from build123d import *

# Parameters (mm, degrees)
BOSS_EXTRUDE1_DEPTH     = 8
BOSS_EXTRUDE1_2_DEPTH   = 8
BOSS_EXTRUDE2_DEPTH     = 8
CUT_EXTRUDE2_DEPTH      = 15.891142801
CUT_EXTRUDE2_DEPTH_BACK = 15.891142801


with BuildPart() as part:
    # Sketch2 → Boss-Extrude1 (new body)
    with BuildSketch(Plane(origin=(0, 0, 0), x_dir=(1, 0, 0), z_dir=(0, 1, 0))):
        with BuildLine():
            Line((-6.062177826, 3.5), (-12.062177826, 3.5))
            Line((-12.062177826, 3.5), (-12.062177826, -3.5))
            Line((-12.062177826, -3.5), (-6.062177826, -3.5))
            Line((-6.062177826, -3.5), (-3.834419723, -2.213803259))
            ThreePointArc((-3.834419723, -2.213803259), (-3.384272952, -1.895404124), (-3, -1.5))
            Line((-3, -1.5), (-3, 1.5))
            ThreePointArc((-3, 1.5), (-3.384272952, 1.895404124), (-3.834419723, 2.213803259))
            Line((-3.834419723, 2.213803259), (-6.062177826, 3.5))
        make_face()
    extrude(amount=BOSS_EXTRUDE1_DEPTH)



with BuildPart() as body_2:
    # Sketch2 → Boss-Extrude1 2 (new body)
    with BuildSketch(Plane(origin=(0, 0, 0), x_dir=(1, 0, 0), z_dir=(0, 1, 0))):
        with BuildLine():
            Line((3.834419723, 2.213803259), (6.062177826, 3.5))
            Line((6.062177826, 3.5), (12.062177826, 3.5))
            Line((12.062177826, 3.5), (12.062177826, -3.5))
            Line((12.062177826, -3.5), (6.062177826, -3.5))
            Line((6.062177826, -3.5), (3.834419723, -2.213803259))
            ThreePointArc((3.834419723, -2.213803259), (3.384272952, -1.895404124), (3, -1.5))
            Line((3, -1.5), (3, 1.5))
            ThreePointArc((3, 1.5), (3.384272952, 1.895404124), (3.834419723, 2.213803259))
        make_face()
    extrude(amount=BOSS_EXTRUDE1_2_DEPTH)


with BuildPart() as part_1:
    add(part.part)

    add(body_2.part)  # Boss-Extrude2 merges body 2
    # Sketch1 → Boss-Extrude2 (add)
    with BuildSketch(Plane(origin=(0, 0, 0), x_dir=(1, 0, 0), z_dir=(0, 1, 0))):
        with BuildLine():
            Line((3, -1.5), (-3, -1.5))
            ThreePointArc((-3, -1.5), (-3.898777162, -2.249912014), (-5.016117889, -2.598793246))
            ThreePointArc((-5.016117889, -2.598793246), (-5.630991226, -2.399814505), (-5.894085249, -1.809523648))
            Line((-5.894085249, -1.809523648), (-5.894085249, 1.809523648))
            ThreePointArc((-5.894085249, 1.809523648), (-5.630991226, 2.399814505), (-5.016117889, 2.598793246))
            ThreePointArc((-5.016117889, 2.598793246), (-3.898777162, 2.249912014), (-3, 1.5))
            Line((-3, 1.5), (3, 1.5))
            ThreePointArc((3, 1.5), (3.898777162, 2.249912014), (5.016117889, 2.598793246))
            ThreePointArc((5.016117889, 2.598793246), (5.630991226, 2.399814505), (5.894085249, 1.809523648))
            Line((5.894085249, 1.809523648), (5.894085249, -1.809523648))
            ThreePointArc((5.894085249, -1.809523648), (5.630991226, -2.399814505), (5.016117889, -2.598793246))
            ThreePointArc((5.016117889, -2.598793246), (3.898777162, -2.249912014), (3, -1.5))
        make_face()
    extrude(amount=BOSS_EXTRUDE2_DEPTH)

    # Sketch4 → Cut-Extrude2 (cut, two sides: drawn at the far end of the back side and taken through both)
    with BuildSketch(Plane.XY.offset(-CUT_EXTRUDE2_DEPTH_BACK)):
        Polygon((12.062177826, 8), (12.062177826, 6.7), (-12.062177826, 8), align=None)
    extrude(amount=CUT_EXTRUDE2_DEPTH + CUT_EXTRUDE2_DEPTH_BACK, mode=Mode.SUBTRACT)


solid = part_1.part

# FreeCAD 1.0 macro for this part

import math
import FreeCAD as App
import Part
import Sketcher
Q = App.Units.Quantity


def add_polygon(sketch, points):
    """Adds a closed chain of lines whose ends are joined by coincident constraints."""
    first, n = sketch.GeometryCount, len(points)
    for a, b in zip(points, points[1:] + points[:1]):
        sketch.addGeometry(Part.LineSegment(App.Vector(*a, 0), App.Vector(*b, 0)), False)
    for i in range(n):
        sketch.addConstraint(Sketcher.Constraint("Coincident", first + i, 2, first + (i + 1) % n, 1))

doc = App.newDocument("Part")
body = doc.addObject("PartDesign::Body", "Body")

# Sketch on XZ plane
sketch1 = doc.addObject("Sketcher::SketchObject", "Sketch")
body.addObject(sketch1)
sketch1.AttachmentSupport = (doc.XZ_Plane, [""])
sketch1.MapMode = "FlatFace"
sketch1.addGeometry([
    Part.LineSegment(App.Vector(-6.1, -3.5, 0), App.Vector(-12.1, -3.5, 0)),  # 0
    Part.LineSegment(App.Vector(-12.1, -3.5, 0), App.Vector(-12.1, 3.5, 0)),  # 1
    Part.LineSegment(App.Vector(-12.1, 3.5, 0), App.Vector(-6.1, 3.5, 0)),  # 2
    Part.LineSegment(App.Vector(-6.1, 3.5, 0), App.Vector(-3.8, 2.2, 0)),  # 3
    Part.ArcOfCircle(Part.Circle(App.Vector(-5.3, -0.4, 0), App.Vector(0, 0, 1), 3), math.radians(39), math.radians(60)),  # 4
    Part.LineSegment(App.Vector(-3, 1.5, 0), App.Vector(-3, -1.5, 0)),  # 5
    Part.ArcOfCircle(Part.Circle(App.Vector(-5.3, 0.4, 0), App.Vector(0, 0, 1), 3), math.radians(-60), math.radians(-39)),  # 6
    Part.LineSegment(App.Vector(-3.8, -2.2, 0), App.Vector(-6.1, -3.5, 0)),  # 7
], False)
sketch1.addConstraint([
    Sketcher.Constraint("Coincident", 0, 2, 1, 1),
    Sketcher.Constraint("Coincident", 1, 2, 2, 1),
    Sketcher.Constraint("Coincident", 2, 2, 3, 1),
    Sketcher.Constraint("Tangent", 3, 2, 4, 2),
    Sketcher.Constraint("Coincident", 4, 1, 5, 1),
    Sketcher.Constraint("Coincident", 5, 2, 6, 2),
    Sketcher.Constraint("Tangent", 6, 1, 7, 1),
    Sketcher.Constraint("Coincident", 7, 2, 0, 1),
    Sketcher.Constraint("Horizontal", 0),
    Sketcher.Constraint("Vertical", 1),
    Sketcher.Constraint("Horizontal", 2),
    Sketcher.Constraint("Vertical", 5),
    Sketcher.Constraint("Equal", 4, 6),
    Sketcher.Constraint("Symmetric", 4, 3, 6, 3, -1),
    Sketcher.Constraint("Symmetric", 2, 2, 7, 2, -1),
    Sketcher.Constraint("Radius", 4, Q("3 mm")),
    Sketcher.Constraint("DistanceX", 0, 2, 0, 1, Q("6 mm")),
    Sketcher.Constraint("DistanceY", 1, 1, 1, 2, Q("7 mm")),
    Sketcher.Constraint("DistanceY", 5, 2, 5, 1, Q("3 mm")),
    Sketcher.Constraint("Angle", 3, Q("-30 deg")),
    Sketcher.Constraint("DistanceX", 4, 1, -1, 1, Q("3 mm")),
    Sketcher.Constraint("DistanceX", 4, 3, -1, 1, Q("5.33442 mm")),
])
pad1 = doc.addObject("PartDesign::Pad", "Pad")
body.addObject(pad1)
pad1.Profile = sketch1
pad1.Length = 8
pad1.Reversed = True
body2 = doc.addObject("PartDesign::Body", "Body001")

# Sketch on XZ plane
sketch2 = doc.addObject("Sketcher::SketchObject", "Sketch001")
body2.addObject(sketch2)
sketch2.AttachmentSupport = (doc.getObject("XZ_Plane001"), [""])
sketch2.MapMode = "FlatFace"
sketch2.addGeometry([
    Part.LineSegment(App.Vector(6.1, -3.5, 0), App.Vector(3.8, -2.2, 0)),  # 0
    Part.ArcOfCircle(Part.Circle(App.Vector(5.3, 0.4, 0), App.Vector(0, 0, 1), 3), math.radians(-141), math.radians(-120)),  # 1
    Part.LineSegment(App.Vector(3, -1.5, 0), App.Vector(3, 1.5, 0)),  # 2
    Part.ArcOfCircle(Part.Circle(App.Vector(5.3, -0.4, 0), App.Vector(0, 0, 1), 3), math.radians(120), math.radians(141)),  # 3
    Part.LineSegment(App.Vector(3.8, 2.2, 0), App.Vector(6.1, 3.5, 0)),  # 4
    Part.LineSegment(App.Vector(6.1, 3.5, 0), App.Vector(12.1, 3.5, 0)),  # 5
    Part.LineSegment(App.Vector(12.1, 3.5, 0), App.Vector(12.1, -3.5, 0)),  # 6
    Part.LineSegment(App.Vector(12.1, -3.5, 0), App.Vector(6.1, -3.5, 0)),  # 7
], False)
sketch2.addConstraint([
    Sketcher.Constraint("Tangent", 0, 2, 1, 2),
    Sketcher.Constraint("Coincident", 1, 1, 2, 1),
    Sketcher.Constraint("Coincident", 2, 2, 3, 2),
    Sketcher.Constraint("Tangent", 3, 1, 4, 1),
    Sketcher.Constraint("Coincident", 4, 2, 5, 1),
    Sketcher.Constraint("Coincident", 5, 2, 6, 1),
    Sketcher.Constraint("Coincident", 6, 2, 7, 1),
    Sketcher.Constraint("Coincident", 7, 2, 0, 1),
    Sketcher.Constraint("Vertical", 2),
    Sketcher.Constraint("Horizontal", 5),
    Sketcher.Constraint("Vertical", 6),
    Sketcher.Constraint("Horizontal", 7),
    Sketcher.Constraint("Equal", 1, 3),
    Sketcher.Constraint("Symmetric", 1, 3, 3, 3, -1),
    Sketcher.Constraint("Symmetric", 4, 2, 7, 2, -1),
    Sketcher.Constraint("Radius", 1, Q("3 mm")),
    Sketcher.Constraint("DistanceX", 5, 1, 5, 2, Q("6 mm")),
    Sketcher.Constraint("DistanceY", 2, 1, 2, 2, Q("3 mm")),
    Sketcher.Constraint("DistanceY", 6, 2, 6, 1, Q("7 mm")),
    Sketcher.Constraint("Angle", 0, Q("150 deg")),
    Sketcher.Constraint("DistanceX", -1, 1, 1, 1, Q("3 mm")),
    Sketcher.Constraint("DistanceX", -1, 1, 1, 3, Q("5.33442 mm")),
])
pad2 = doc.addObject("PartDesign::Pad", "Pad001")
body2.addObject(pad2)
pad2.Profile = sketch2
pad2.Length = 8
pad2.Reversed = True
body.AllowCompound = True
doc.recompute()

boolean = doc.addObject("PartDesign::Boolean", "Boolean")
body.addObject(boolean)
boolean.Type = "Fuse"
boolean.addObjects([body2])

# Sketch on XZ plane
sketch3 = doc.addObject("Sketcher::SketchObject", "Sketch002")
body.addObject(sketch3)
sketch3.AttachmentSupport = (doc.XZ_Plane, [""])
sketch3.MapMode = "FlatFace"
sketch3.addGeometry([
    Part.LineSegment(App.Vector(-3, 1.5, 0), App.Vector(3, 1.5, 0)),  # 0
    Part.ArcOfCircle(Part.Circle(App.Vector(5.3, -0.4, 0), App.Vector(0, 0, 1), 3), math.radians(96), math.radians(141)),  # 1
    Part.ArcOfCircle(Part.Circle(App.Vector(5.1, 1.8, 0), App.Vector(0, 0, 1), 0.8), math.radians(0), math.radians(96)),  # 2
    Part.LineSegment(App.Vector(5.9, 1.8, 0), App.Vector(5.9, -1.8, 0)),  # 3
    Part.ArcOfCircle(Part.Circle(App.Vector(5.1, -1.8, 0), App.Vector(0, 0, 1), 0.8), math.radians(-96), math.radians(0)),  # 4
    Part.ArcOfCircle(Part.Circle(App.Vector(5.3, 0.4, 0), App.Vector(0, 0, 1), 3), math.radians(-141), math.radians(-96)),  # 5
    Part.LineSegment(App.Vector(3, -1.5, 0), App.Vector(-3, -1.5, 0)),  # 6
    Part.ArcOfCircle(Part.Circle(App.Vector(-5.3, 0.4, 0), App.Vector(0, 0, 1), 3), math.radians(-84), math.radians(-39)),  # 7
    Part.ArcOfCircle(Part.Circle(App.Vector(-5.1, -1.8, 0), App.Vector(0, 0, 1), 0.8), math.radians(-180), math.radians(-84)),  # 8
    Part.LineSegment(App.Vector(-5.9, -1.8, 0), App.Vector(-5.9, 1.8, 0)),  # 9
    Part.ArcOfCircle(Part.Circle(App.Vector(-5.1, 1.8, 0), App.Vector(0, 0, 1), 0.8), math.radians(84), math.radians(180)),  # 10
    Part.ArcOfCircle(Part.Circle(App.Vector(-5.3, -0.4, 0), App.Vector(0, 0, 1), 3), math.radians(39), math.radians(84)),  # 11
], False)
sketch3.addConstraint([
    Sketcher.Constraint("Coincident", 0, 2, 1, 2),
    Sketcher.Constraint("Tangent", 1, 1, 2, 2),
    Sketcher.Constraint("Tangent", 2, 1, 3, 1),
    Sketcher.Constraint("Tangent", 3, 2, 4, 2),
    Sketcher.Constraint("Tangent", 4, 1, 5, 2),
    Sketcher.Constraint("Coincident", 5, 1, 6, 1),
    Sketcher.Constraint("Coincident", 6, 2, 7, 2),
    Sketcher.Constraint("Tangent", 7, 1, 8, 2),
    Sketcher.Constraint("Tangent", 8, 1, 9, 1),
    Sketcher.Constraint("Tangent", 9, 2, 10, 2),
    Sketcher.Constraint("Tangent", 10, 1, 11, 2),
    Sketcher.Constraint("Coincident", 11, 1, 0, 1),
    Sketcher.Constraint("Horizontal", 0),
    Sketcher.Constraint("Vertical", 3),
    Sketcher.Constraint("Horizontal", 6),
    Sketcher.Constraint("Vertical", 9),
    Sketcher.Constraint("Equal", 2, 4),
    Sketcher.Constraint("Equal", 1, 5),
    Sketcher.Constraint("Equal", 5, 7),
    Sketcher.Constraint("Equal", 4, 8),
    Sketcher.Constraint("Equal", 8, 10),
    Sketcher.Constraint("Equal", 7, 11),
    Sketcher.Constraint("Symmetric", 1, 3, 7, 3, -1, 1),
    Sketcher.Constraint("Symmetric", 4, 3, 10, 3, -1, 1),
    Sketcher.Constraint("Symmetric", 5, 1, 11, 1, -1, 1),
    Sketcher.Constraint("Symmetric", 5, 3, 7, 3, -2),
    Sketcher.Constraint("Radius", 1, Q("3 mm")),
    Sketcher.Constraint("DistanceX", 0, 1, 0, 2, Q("6 mm")),
    Sketcher.Constraint("DistanceY", 5, 1, 0, 2, Q("3 mm")),
    Sketcher.Constraint("Radius", 2, Q("0.79375 mm")),
    Sketcher.Constraint("DistanceX", 1, 1, 5, 3, Q("0.318302 mm")),
    Sketcher.Constraint("DistanceY", 3, 2, 3, 1, Q("3.619047 mm")),
])
pad3 = doc.addObject("PartDesign::Pad", "Pad002")
body.addObject(pad3)
pad3.Profile = sketch3
pad3.Length = 8
pad3.Reversed = True

# Sketch on XY plane
sketch4 = doc.addObject("Sketcher::SketchObject", "Sketch003")
body.addObject(sketch4)
sketch4.AttachmentSupport = (doc.XY_Plane, [""])
sketch4.MapMode = "FlatFace"
add_polygon(sketch4, [(12.1, 6.7), (12.1, 8), (-12.1, 8)])  # lines 0-2
sketch4.addConstraint([
    Sketcher.Constraint("Vertical", 0),
    Sketcher.Constraint("Horizontal", 1),
    Sketcher.Constraint("DistanceY", 0, 1, 0, 2, Q("1.3 mm")),
    Sketcher.Constraint("DistanceY", -1, 1, 0, 2, Q("8 mm")),
    Sketcher.Constraint("DistanceX", 1, 2, 1, 1, Q("24.124356 mm")),
    Sketcher.Constraint("DistanceX", -1, 1, 0, 2, Q("12.062178 mm")),
])
pocket1 = doc.addObject("PartDesign::Pocket", "Pocket")
body.addObject(pocket1)
pocket1.Profile = sketch4
pocket1.Type = "ThroughAll"
pocket1.Midplane = True

doc.recompute()
